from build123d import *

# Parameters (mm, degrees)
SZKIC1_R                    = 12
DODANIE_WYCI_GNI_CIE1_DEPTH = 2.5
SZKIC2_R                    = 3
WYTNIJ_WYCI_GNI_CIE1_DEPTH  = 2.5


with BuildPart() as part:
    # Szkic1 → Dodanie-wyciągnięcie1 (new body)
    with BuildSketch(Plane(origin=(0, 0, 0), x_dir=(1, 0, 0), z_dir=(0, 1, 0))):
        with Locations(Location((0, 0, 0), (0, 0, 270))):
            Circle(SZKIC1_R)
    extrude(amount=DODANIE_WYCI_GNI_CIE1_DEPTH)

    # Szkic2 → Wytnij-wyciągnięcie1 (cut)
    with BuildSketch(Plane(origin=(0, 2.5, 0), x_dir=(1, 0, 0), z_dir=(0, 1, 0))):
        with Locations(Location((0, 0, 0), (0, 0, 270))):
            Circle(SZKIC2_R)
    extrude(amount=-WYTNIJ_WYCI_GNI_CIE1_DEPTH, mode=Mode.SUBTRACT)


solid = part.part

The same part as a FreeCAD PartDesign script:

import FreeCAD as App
import Part
import Sketcher
Q = App.Units.Quantity

doc = App.newDocument("Part")
body = doc.addObject("PartDesign::Body", "Body")

sketch1 = body.newObject("Sketcher::SketchObject", "Sketch")
sketch1.AttachmentSupport = (doc.getObject("XZ_Plane"), [""])
sketch1.MapMode = "FlatFace"
sketch1.addGeometry(Part.Circle(App.Vector(0, 0, 0), App.Vector(0, 0, 1), 12), False)
sketch1.addConstraint([
    Sketcher.Constraint("Coincident", 0, 3, -1, 1),
    Sketcher.Constraint("Diameter", 0, Q("24 mm")),
])
pad1 = body.newObject("PartDesign::Pad", "Pad")
pad1.Profile = sketch1
pad1.Length = 2.5
pad1.Reversed = True

sketch2 = body.newObject("Sketcher::SketchObject", "Sketch001")
sketch2.AttachmentSupport = (doc.getObject("XZ_Plane"), [""])
sketch2.MapMode = "FlatFace"
sketch2.AttachmentOffset = App.Placement(App.Vector(0, 0, -2.5), App.Rotation())
sketch2.addGeometry(Part.Circle(App.Vector(0, 0, 0), App.Vector(0, 0, 1), 3), False)
sketch2.addConstraint([
    Sketcher.Constraint("Coincident", 0, 3, -1, 1),
    Sketcher.Constraint("Diameter", 0, Q("6 mm")),
])
pocket1 = body.newObject("PartDesign::Pocket", "Pocket")
pocket1.Profile = sketch2
pocket1.Length = 2.5
pocket1.Reversed = True

doc.recompute()
